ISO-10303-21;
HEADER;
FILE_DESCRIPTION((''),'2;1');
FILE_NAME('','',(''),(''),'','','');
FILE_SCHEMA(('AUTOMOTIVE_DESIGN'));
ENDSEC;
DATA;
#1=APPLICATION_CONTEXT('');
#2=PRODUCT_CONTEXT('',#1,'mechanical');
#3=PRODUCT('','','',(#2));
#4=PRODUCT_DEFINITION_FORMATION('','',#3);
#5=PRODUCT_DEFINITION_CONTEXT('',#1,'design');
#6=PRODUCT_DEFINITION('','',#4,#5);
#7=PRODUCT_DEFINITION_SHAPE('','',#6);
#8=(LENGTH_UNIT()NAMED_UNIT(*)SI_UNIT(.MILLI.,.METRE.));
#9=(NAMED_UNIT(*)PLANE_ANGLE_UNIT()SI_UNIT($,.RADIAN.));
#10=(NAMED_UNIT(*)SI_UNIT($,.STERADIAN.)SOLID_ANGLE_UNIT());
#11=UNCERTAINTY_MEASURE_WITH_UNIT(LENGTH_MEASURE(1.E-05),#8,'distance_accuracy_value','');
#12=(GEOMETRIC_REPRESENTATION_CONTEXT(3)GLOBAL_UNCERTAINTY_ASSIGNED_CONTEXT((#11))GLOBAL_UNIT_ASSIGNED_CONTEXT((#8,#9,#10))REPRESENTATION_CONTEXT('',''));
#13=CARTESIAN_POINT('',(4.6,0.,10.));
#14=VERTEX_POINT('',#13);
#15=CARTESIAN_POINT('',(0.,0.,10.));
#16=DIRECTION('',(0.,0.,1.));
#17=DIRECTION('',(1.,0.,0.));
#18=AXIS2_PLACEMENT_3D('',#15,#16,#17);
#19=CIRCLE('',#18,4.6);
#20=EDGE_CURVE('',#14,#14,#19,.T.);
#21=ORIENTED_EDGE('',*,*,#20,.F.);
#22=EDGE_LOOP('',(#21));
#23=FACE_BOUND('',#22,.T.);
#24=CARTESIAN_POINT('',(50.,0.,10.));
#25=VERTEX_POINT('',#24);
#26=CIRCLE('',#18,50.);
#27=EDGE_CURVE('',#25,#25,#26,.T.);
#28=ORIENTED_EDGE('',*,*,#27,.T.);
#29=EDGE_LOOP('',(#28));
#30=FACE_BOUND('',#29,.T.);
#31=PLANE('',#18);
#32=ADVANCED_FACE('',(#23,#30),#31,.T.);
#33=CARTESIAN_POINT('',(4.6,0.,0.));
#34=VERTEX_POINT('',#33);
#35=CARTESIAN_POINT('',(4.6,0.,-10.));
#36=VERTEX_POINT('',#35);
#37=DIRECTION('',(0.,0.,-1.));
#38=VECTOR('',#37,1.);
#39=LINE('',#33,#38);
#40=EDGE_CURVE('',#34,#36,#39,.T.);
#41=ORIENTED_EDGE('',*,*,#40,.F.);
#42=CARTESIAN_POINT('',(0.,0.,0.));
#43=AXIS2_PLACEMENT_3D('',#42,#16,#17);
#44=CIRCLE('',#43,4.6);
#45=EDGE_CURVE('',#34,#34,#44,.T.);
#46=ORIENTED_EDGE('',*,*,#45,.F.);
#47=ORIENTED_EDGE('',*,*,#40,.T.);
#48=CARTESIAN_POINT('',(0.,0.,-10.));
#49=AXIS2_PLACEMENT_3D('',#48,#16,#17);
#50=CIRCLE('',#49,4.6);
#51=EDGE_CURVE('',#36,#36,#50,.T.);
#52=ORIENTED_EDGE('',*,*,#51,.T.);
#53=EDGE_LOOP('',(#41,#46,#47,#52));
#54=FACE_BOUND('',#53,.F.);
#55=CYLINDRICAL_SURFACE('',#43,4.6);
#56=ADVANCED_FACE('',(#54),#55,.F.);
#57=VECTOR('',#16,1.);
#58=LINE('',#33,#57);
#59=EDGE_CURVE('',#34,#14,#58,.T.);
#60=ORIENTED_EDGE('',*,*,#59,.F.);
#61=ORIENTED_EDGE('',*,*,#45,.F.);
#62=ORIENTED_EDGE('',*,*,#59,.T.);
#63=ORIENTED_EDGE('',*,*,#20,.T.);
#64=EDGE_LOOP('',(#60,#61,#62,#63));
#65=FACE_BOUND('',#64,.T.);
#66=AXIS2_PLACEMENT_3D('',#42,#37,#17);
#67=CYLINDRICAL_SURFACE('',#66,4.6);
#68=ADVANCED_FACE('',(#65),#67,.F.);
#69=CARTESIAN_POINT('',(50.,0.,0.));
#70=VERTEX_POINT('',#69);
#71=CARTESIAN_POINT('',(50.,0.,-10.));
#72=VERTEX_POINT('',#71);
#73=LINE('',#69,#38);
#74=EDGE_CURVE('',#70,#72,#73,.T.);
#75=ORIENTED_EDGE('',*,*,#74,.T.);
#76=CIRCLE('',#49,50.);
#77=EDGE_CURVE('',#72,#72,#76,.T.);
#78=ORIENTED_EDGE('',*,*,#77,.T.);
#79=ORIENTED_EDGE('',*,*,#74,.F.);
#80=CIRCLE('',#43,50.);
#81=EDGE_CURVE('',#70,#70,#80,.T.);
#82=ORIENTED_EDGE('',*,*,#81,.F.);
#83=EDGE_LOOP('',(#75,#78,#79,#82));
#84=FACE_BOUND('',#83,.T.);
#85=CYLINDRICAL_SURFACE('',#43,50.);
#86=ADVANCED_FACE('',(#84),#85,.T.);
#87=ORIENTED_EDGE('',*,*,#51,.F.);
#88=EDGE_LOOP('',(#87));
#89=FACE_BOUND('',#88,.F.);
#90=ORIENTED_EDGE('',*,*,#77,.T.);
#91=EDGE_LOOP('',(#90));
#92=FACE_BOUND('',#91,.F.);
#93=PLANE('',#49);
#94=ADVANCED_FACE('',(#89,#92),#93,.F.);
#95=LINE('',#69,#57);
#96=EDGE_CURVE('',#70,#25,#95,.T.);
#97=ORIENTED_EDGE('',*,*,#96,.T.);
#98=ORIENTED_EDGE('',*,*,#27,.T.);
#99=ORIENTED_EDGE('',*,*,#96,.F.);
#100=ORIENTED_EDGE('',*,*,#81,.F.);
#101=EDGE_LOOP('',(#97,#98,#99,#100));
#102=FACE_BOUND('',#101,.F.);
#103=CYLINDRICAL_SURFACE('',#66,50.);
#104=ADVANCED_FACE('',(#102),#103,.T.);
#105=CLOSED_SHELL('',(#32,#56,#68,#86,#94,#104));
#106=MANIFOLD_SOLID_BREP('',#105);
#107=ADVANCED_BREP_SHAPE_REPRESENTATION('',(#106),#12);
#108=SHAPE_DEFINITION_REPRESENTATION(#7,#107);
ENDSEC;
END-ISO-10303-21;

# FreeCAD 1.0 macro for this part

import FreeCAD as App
import Part
import Sketcher
Q = App.Units.Quantity

doc = App.newDocument("Part")
body = doc.addObject("PartDesign::Body", "Body")

sketch1 = body.newObject("Sketcher::SketchObject", "Sketch")
sketch1.AttachmentSupport = (doc.getObject("XY_Plane"), [""])
sketch1.MapMode = "FlatFace"
sketch1.addGeometry(Part.Circle(App.Vector(0, 0, 0), App.Vector(0, 0, 1), 50), False)
sketch1.addGeometry(Part.Circle(App.Vector(0, 0, 0), App.Vector(0, 0, 1), 4.6), False)
sketch1.addConstraint(Sketcher.Constraint("Coincident", 0, 3, -1, 1))
sketch1.addConstraint(Sketcher.Constraint("Coincident", 1, 3, -1, 1))
sketch1.addConstraint(Sketcher.Constraint("Diameter", 0, Q("3.937 in")))
sketch1.addConstraint(Sketcher.Constraint("Diameter", 1, Q("0.3622 in")))
pad1 = body.newObject("PartDesign::Pad", "Pad")
pad1.Profile = sketch1
pad1.Length = Q("0.7874016 in")
pad1.Midplane = True

doc.recompute()
